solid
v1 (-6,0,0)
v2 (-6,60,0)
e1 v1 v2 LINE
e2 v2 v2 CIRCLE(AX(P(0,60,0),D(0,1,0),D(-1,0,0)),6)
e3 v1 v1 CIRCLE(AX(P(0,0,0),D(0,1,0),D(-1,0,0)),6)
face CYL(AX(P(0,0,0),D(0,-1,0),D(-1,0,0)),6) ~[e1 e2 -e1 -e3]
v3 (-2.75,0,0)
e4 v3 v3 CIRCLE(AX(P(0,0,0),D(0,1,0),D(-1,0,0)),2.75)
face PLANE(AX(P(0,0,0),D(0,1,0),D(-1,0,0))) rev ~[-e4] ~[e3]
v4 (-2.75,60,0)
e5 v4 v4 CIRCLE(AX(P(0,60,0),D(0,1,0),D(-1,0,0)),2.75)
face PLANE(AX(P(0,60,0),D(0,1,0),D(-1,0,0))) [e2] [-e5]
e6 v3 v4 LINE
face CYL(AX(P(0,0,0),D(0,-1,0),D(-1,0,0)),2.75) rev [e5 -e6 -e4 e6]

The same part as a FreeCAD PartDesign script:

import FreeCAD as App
import Part
import Sketcher

V = App.Vector

doc = App.newDocument("Part")
params = doc.addObject("Spreadsheet::Sheet", "Params")
for row, (alias, value) in enumerate([
    ("sketch1_diameter", "12 mm"),
    ("sketch1_diameter2", "5.5 mm"),
    ("pad1_length", "60 mm"),
], start=1):
    params.set(f"A{row}", alias)
    params.set(f"B{row}", "=" + value)
    params.setAlias(f"B{row}", alias)

body = doc.addObject("PartDesign::Body", "Body")

# Sketch on XZ plane
sketch1 = body.newObject("Sketcher::SketchObject", "Sketch")
sketch1.AttachmentSupport = (doc.getObject("XZ_Plane"), [""])
sketch1.MapMode = "FlatFace"
sketch1.addGeometry(Part.Circle(V(0, 0, 0), V(0, 0, 1), 6), False)
sketch1.addGeometry(Part.Circle(V(0, 0, 0), V(0, 0, 1), 2.8), False)
sketch1.addConstraint(Sketcher.Constraint("Coincident", 0, 3, -1, 1))
sketch1.addConstraint(Sketcher.Constraint("Coincident", 1, 3, -1, 1))
sketch1.addConstraint(Sketcher.Constraint("Diameter", 0, 12.0))
sketch1.addConstraint(Sketcher.Constraint("Diameter", 1, 5.5))
sketch1.setExpression("Constraints[2]", "Params.sketch1_diameter")
sketch1.setExpression("Constraints[3]", "Params.sketch1_diameter2")
pad1 = body.newObject("PartDesign::Pad", "Pad")
pad1.Profile = sketch1
pad1.setExpression("Length", "Params.pad1_length")
pad1.Reversed = True

doc.recompute()
